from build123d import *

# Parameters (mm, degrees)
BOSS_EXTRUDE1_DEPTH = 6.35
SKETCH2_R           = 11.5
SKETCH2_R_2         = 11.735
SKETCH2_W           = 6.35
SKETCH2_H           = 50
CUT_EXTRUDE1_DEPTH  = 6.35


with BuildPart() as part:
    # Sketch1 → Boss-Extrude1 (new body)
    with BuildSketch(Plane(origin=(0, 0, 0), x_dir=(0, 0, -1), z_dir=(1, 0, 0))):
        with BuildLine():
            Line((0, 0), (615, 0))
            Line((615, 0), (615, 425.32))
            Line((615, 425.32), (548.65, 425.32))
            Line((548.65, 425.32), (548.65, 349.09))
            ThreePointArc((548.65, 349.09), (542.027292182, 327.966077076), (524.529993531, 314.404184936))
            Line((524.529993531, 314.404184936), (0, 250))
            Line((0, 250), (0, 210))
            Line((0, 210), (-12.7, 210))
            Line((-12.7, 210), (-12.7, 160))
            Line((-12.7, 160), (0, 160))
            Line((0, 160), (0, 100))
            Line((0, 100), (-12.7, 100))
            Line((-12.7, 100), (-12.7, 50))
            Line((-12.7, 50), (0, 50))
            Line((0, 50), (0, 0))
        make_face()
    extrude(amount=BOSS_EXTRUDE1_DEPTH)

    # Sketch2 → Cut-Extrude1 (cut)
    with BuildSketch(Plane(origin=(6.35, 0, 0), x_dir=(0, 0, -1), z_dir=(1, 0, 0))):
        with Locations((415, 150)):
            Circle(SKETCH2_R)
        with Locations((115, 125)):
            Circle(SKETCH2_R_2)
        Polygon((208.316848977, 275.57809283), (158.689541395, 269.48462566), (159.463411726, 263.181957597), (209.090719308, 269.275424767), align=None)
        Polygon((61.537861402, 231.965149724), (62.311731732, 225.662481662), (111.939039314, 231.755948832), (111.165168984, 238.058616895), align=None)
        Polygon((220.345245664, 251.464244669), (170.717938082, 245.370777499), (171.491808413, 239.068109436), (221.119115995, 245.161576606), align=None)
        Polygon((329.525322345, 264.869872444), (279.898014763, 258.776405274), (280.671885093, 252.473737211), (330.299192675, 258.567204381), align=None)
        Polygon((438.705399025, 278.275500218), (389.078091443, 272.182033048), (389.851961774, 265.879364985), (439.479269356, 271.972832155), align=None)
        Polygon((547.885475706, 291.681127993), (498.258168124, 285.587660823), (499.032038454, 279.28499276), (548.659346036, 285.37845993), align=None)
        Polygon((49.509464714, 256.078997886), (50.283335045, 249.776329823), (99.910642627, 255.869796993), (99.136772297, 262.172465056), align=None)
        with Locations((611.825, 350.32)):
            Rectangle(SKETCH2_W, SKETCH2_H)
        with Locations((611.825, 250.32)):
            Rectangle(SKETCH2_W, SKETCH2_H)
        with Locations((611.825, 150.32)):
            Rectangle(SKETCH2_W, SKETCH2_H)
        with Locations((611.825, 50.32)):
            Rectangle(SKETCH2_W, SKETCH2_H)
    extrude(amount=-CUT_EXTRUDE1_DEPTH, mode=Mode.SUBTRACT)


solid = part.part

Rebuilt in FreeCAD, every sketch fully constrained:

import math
import FreeCAD as App
import Part
import Sketcher
Q = App.Units.Quantity

doc = App.newDocument("Part")
body = doc.addObject("PartDesign::Body", "Body")

# Sketch on YZ plane
sketch1 = body.newObject("Sketcher::SketchObject", "Sketch")
sketch1.AttachmentSupport = (doc.getObject("YZ_Plane"), [""])
sketch1.MapMode = "FlatFace"
sketch1.addGeometry([
    Part.LineSegment(App.Vector(0, 0, 0), App.Vector(0, -615, 0)),  # 0
    Part.LineSegment(App.Vector(0, -615, 0), App.Vector(425, -615, 0)),  # 1
    Part.LineSegment(App.Vector(425, -615, 0), App.Vector(425, -549, 0)),  # 2
    Part.LineSegment(App.Vector(425, -549, 0), App.Vector(349, -549, 0)),  # 3
    Part.ArcOfCircle(Part.Circle(App.Vector(349, -512, 0), App.Vector(0, 0, 1), 37), math.radians(-160), math.radians(-90)),  # 4
    Part.LineSegment(App.Vector(314, -525, 0), App.Vector(250, 0, 0)),  # 5
    Part.LineSegment(App.Vector(250, 0, 0), App.Vector(210, 0, 0)),  # 6
    Part.LineSegment(App.Vector(210, 0, 0), App.Vector(210, 13, 0)),  # 7
    Part.LineSegment(App.Vector(210, 13, 0), App.Vector(160, 13, 0)),  # 8
    Part.LineSegment(App.Vector(160, 13, 0), App.Vector(160, 0, 0)),  # 9
    Part.LineSegment(App.Vector(160, 0, 0), App.Vector(100, 0, 0)),  # 10
    Part.LineSegment(App.Vector(100, 0, 0), App.Vector(100, 13, 0)),  # 11
    Part.LineSegment(App.Vector(100, 13, 0), App.Vector(50, 13, 0)),  # 12
    Part.LineSegment(App.Vector(50, 13, 0), App.Vector(50, 0, 0)),  # 13
    Part.LineSegment(App.Vector(50, 0, 0), App.Vector(0, 0, 0)),  # 14
], False)
sketch1.addConstraint([
    Sketcher.Constraint("Coincident", 0, 2, 1, 1),
    Sketcher.Constraint("Coincident", 1, 2, 2, 1),
    Sketcher.Constraint("Coincident", 2, 2, 3, 1),
    Sketcher.Constraint("Tangent", 3, 2, 4, 2),
    Sketcher.Constraint("Coincident", 4, 1, 5, 1),
    Sketcher.Constraint("Coincident", 5, 2, 6, 1),
    Sketcher.Constraint("Coincident", 6, 2, 7, 1),
    Sketcher.Constraint("Coincident", 7, 2, 8, 1),
    Sketcher.Constraint("Coincident", 8, 2, 9, 1),
    Sketcher.Constraint("Coincident", 9, 2, 10, 1),
    Sketcher.Constraint("Coincident", 10, 2, 11, 1),
    Sketcher.Constraint("Coincident", 11, 2, 12, 1),
    Sketcher.Constraint("Coincident", 12, 2, 13, 1),
    Sketcher.Constraint("Coincident", 13, 2, 14, 1),
    Sketcher.Constraint("Coincident", 14, 2, 0, 1),
    Sketcher.Constraint("Vertical", 0),
    Sketcher.Constraint("Horizontal", 1),
    Sketcher.Constraint("Vertical", 2),
    Sketcher.Constraint("Horizontal", 3),
    Sketcher.Constraint("Horizontal", 6),
    Sketcher.Constraint("Vertical", 7),
    Sketcher.Constraint("Horizontal", 8),
    Sketcher.Constraint("Vertical", 9),
    Sketcher.Constraint("Horizontal", 10),
    Sketcher.Constraint("Vertical", 11),
    Sketcher.Constraint("Horizontal", 12),
    Sketcher.Constraint("Vertical", 13),
    Sketcher.Constraint("Horizontal", 14),
    Sketcher.Constraint("Coincident", 14, 2, -1, 1),
    Sketcher.Constraint("PointOnObject", 5, 2, -1),
    Sketcher.Constraint("PointOnObject", 9, 2, -1),
    Sketcher.Constraint("Horizontal", 8, 2, 11, 2),
    Sketcher.Constraint("Equal", 8, 12),
    Sketcher.Constraint("Equal", 12, 14),
    Sketcher.Constraint("Radius", 4, Q("37 mm")),
    Sketcher.Constraint("DistanceX", 6, 2, 6, 1, Q("40 mm")),
    Sketcher.Constraint("DistanceX", 8, 2, 8, 1, Q("50 mm")),
    Sketcher.Constraint("DistanceX", 10, 2, 10, 1, Q("60 mm")),
    Sketcher.Constraint("DistanceY", 0, 2, 0, 1, Q("615 mm")),
    Sketcher.Constraint("Angle", 5, Q("97 deg")),
    Sketcher.Constraint("DistanceY", 7, 1, 7, 2, Q("12.7 mm")),
    Sketcher.Constraint("DistanceX", 1, 1, 1, 2, Q("425.32 mm")),
    Sketcher.Constraint("DistanceX", 3, 2, 3, 1, Q("76.23 mm")),
    Sketcher.Constraint("DistanceY", 2, 1, 2, 2, Q("66.35 mm")),
])
pad1 = body.newObject("PartDesign::Pad", "Pad")
pad1.Profile = sketch1
pad1.Length = 6.35

# Sketch on YZ plane
sketch2 = body.newObject("Sketcher::SketchObject", "Sketch001")
sketch2.AttachmentSupport = (doc.getObject("YZ_Plane"), [""])
sketch2.MapMode = "FlatFace"
sketch2.AttachmentOffset = App.Placement(App.Vector(0, 0, 6.35), App.Rotation())
sketch2.addGeometry([
    Part.Circle(App.Vector(150, -415, 0), App.Vector(0, 0, 1), 12),  # 0
    Part.Circle(App.Vector(125, -115, 0), App.Vector(0, 0, 1), 12),  # 1
    Part.LineSegment(App.Vector(276, -208, 0), App.Vector(269, -159, 0)),  # 2
    Part.LineSegment(App.Vector(269, -159, 0), App.Vector(263, -159, 0)),  # 3
    Part.LineSegment(App.Vector(263, -159, 0), App.Vector(269, -209, 0)),  # 4
    Part.LineSegment(App.Vector(269, -209, 0), App.Vector(276, -208, 0)),  # 5
    Part.LineSegment(App.Vector(232, -62, 0), App.Vector(226, -62, 0)),  # 6
    Part.LineSegment(App.Vector(226, -62, 0), App.Vector(232, -112, 0)),  # 7
    Part.LineSegment(App.Vector(232, -112, 0), App.Vector(238, -111, 0)),  # 8
    Part.LineSegment(App.Vector(238, -111, 0), App.Vector(232, -62, 0)),  # 9
    Part.LineSegment(App.Vector(251, -220, 0), App.Vector(245, -171, 0)),  # 10
    Part.LineSegment(App.Vector(245, -171, 0), App.Vector(239, -171, 0)),  # 11
    Part.LineSegment(App.Vector(239, -171, 0), App.Vector(245, -221, 0)),  # 12
    Part.LineSegment(App.Vector(245, -221, 0), App.Vector(251, -220, 0)),  # 13
    Part.LineSegment(App.Vector(265, -330, 0), App.Vector(259, -280, 0)),  # 14
    Part.LineSegment(App.Vector(259, -280, 0), App.Vector(252, -281, 0)),  # 15
    Part.LineSegment(App.Vector(252, -281, 0), App.Vector(259, -330, 0)),  # 16
    Part.LineSegment(App.Vector(259, -330, 0), App.Vector(265, -330, 0)),  # 17
    Part.LineSegment(App.Vector(278, -439, 0), App.Vector(272, -389, 0)),  # 18
    Part.LineSegment(App.Vector(272, -389, 0), App.Vector(266, -390, 0)),  # 19
    Part.LineSegment(App.Vector(266, -390, 0), App.Vector(272, -439, 0)),  # 20
    Part.LineSegment(App.Vector(272, -439, 0), App.Vector(278, -439, 0)),  # 21
    Part.LineSegment(App.Vector(292, -548, 0), App.Vector(286, -498, 0)),  # 22
    Part.LineSegment(App.Vector(286, -498, 0), App.Vector(279, -499, 0)),  # 23
    Part.LineSegment(App.Vector(279, -499, 0), App.Vector(285, -549, 0)),  # 24
    Part.LineSegment(App.Vector(285, -549, 0), App.Vector(292, -548, 0)),  # 25
    Part.LineSegment(App.Vector(256, -50, 0), App.Vector(250, -50, 0)),  # 26
    Part.LineSegment(App.Vector(250, -50, 0), App.Vector(256, -100, 0)),  # 27
    Part.LineSegment(App.Vector(256, -100, 0), App.Vector(262, -99, 0)),  # 28
    Part.LineSegment(App.Vector(262, -99, 0), App.Vector(256, -50, 0)),  # 29
    Part.LineSegment(App.Vector(375, -609, 0), App.Vector(325, -609, 0)),  # 30
    Part.LineSegment(App.Vector(325, -609, 0), App.Vector(325, -615, 0)),  # 31
    Part.LineSegment(App.Vector(325, -615, 0), App.Vector(375, -615, 0)),  # 32
    Part.LineSegment(App.Vector(375, -615, 0), App.Vector(375, -609, 0)),  # 33
    Part.LineSegment(App.Vector(275, -609, 0), App.Vector(225, -609, 0)),  # 34
    Part.LineSegment(App.Vector(225, -609, 0), App.Vector(225, -615, 0)),  # 35
    Part.LineSegment(App.Vector(225, -615, 0), App.Vector(275, -615, 0)),  # 36
    Part.LineSegment(App.Vector(275, -615, 0), App.Vector(275, -609, 0)),  # 37
    Part.LineSegment(App.Vector(175, -609, 0), App.Vector(125, -609, 0)),  # 38
    Part.LineSegment(App.Vector(125, -609, 0), App.Vector(125, -615, 0)),  # 39
    Part.LineSegment(App.Vector(125, -615, 0), App.Vector(175, -615, 0)),  # 40
    Part.LineSegment(App.Vector(175, -615, 0), App.Vector(175, -609, 0)),  # 41
    Part.LineSegment(App.Vector(75, -609, 0), App.Vector(25, -609, 0)),  # 42
    Part.LineSegment(App.Vector(25, -609, 0), App.Vector(25, -615, 0)),  # 43
    Part.LineSegment(App.Vector(25, -615, 0), App.Vector(75, -615, 0)),  # 44
    Part.LineSegment(App.Vector(75, -615, 0), App.Vector(75, -609, 0)),  # 45
], False)
sketch2.addConstraint([
    Sketcher.Constraint("Coincident", 2, 2, 3, 1),
    Sketcher.Constraint("Coincident", 3, 2, 4, 1),
    Sketcher.Constraint("Coincident", 4, 2, 5, 1),
    Sketcher.Constraint("Coincident", 5, 2, 2, 1),
    Sketcher.Constraint("Coincident", 6, 2, 7, 1),
    Sketcher.Constraint("Coincident", 7, 2, 8, 1),
    Sketcher.Constraint("Coincident", 8, 2, 9, 1),
    Sketcher.Constraint("Coincident", 9, 2, 6, 1),
    Sketcher.Constraint("Coincident", 10, 2, 11, 1),
    Sketcher.Constraint("Coincident", 11, 2, 12, 1),
    Sketcher.Constraint("Coincident", 12, 2, 13, 1),
    Sketcher.Constraint("Coincident", 13, 2, 10, 1),
    Sketcher.Constraint("Coincident", 14, 2, 15, 1),
    Sketcher.Constraint("Coincident", 15, 2, 16, 1),
    Sketcher.Constraint("Coincident", 16, 2, 17, 1),
    Sketcher.Constraint("Coincident", 17, 2, 14, 1),
    Sketcher.Constraint("Coincident", 18, 2, 19, 1),
    Sketcher.Constraint("Coincident", 19, 2, 20, 1),
    Sketcher.Constraint("Coincident", 20, 2, 21, 1),
    Sketcher.Constraint("Coincident", 21, 2, 18, 1),
    Sketcher.Constraint("Coincident", 22, 2, 23, 1),
    Sketcher.Constraint("Coincident", 23, 2, 24, 1),
    Sketcher.Constraint("Coincident", 24, 2, 25, 1),
    Sketcher.Constraint("Coincident", 25, 2, 22, 1),
    Sketcher.Constraint("Coincident", 26, 2, 27, 1),
    Sketcher.Constraint("Coincident", 27, 2, 28, 1),
    Sketcher.Constraint("Coincident", 28, 2, 29, 1),
    Sketcher.Constraint("Coincident", 29, 2, 26, 1),
    Sketcher.Constraint("Coincident", 30, 2, 31, 1),
    Sketcher.Constraint("Coincident", 31, 2, 32, 1),
    Sketcher.Constraint("Coincident", 32, 2, 33, 1),
    Sketcher.Constraint("Coincident", 33, 2, 30, 1),
    Sketcher.Constraint("Coincident", 34, 2, 35, 1),
    Sketcher.Constraint("Coincident", 35, 2, 36, 1),
    Sketcher.Constraint("Coincident", 36, 2, 37, 1),
    Sketcher.Constraint("Coincident", 37, 2, 34, 1),
    Sketcher.Constraint("Coincident", 38, 2, 39, 1),
    Sketcher.Constraint("Coincident", 39, 2, 40, 1),
    Sketcher.Constraint("Coincident", 40, 2, 41, 1),
    Sketcher.Constraint("Coincident", 41, 2, 38, 1),
    Sketcher.Constraint("Coincident", 42, 2, 43, 1),
    Sketcher.Constraint("Coincident", 43, 2, 44, 1),
    Sketcher.Constraint("Coincident", 44, 2, 45, 1),
    Sketcher.Constraint("Coincident", 45, 2, 42, 1),
    Sketcher.Constraint("Horizontal", 30),
    Sketcher.Constraint("Vertical", 31),
    Sketcher.Constraint("Horizontal", 32),
    Sketcher.Constraint("Vertical", 33),
    Sketcher.Constraint("Horizontal", 34),
    Sketcher.Constraint("Vertical", 35),
    Sketcher.Constraint("Horizontal", 36),
    Sketcher.Constraint("Vertical", 37),
    Sketcher.Constraint("Horizontal", 38),
    Sketcher.Constraint("Vertical", 39),
    Sketcher.Constraint("Horizontal", 40),
    Sketcher.Constraint("Vertical", 41),
    Sketcher.Constraint("Horizontal", 42),
    Sketcher.Constraint("Vertical", 43),
    Sketcher.Constraint("Horizontal", 44),
    Sketcher.Constraint("Vertical", 45),
    Sketcher.Constraint("Perpendicular", 2, 3),
    Sketcher.Constraint("Perpendicular", 3, 4),
    Sketcher.Constraint("Perpendicular", 4, 5),
    Sketcher.Constraint("Parallel", 5, 6),
    Sketcher.Constraint("Perpendicular", 6, 7),
    Sketcher.Constraint("Perpendicular", 7, 8),
    Sketcher.Constraint("Perpendicular", 8, 9),
    Sketcher.Constraint("Parallel", 9, 10),
    Sketcher.Constraint("Perpendicular", 10, 11),
    Sketcher.Constraint("Perpendicular", 11, 12),
    Sketcher.Constraint("Perpendicular", 12, 13),
    Sketcher.Constraint("Perpendicular", 13, 14),
    Sketcher.Constraint("Perpendicular", 14, 15),
    Sketcher.Constraint("Perpendicular", 15, 16),
    Sketcher.Constraint("Perpendicular", 16, 17),
    Sketcher.Constraint("Perpendicular", 17, 18),
    Sketcher.Constraint("Perpendicular", 18, 19),
    Sketcher.Constraint("Perpendicular", 19, 20),
    Sketcher.Constraint("Perpendicular", 20, 21),
    Sketcher.Constraint("Perpendicular", 21, 22),
    Sketcher.Constraint("Perpendicular", 22, 23),
    Sketcher.Constraint("Perpendicular", 23, 24),
    Sketcher.Constraint("Perpendicular", 24, 25),
    Sketcher.Constraint("Parallel", 25, 26),
    Sketcher.Constraint("Perpendicular", 26, 27),
    Sketcher.Constraint("Perpendicular", 27, 28),
    Sketcher.Constraint("Perpendicular", 28, 29),
    Sketcher.Constraint("Horizontal", 33, 2, 34, 2),
    Sketcher.Constraint("Horizontal", 32, 2, 35, 2),
    Sketcher.Constraint("Horizontal", 37, 2, 38, 2),
    Sketcher.Constraint("Horizontal", 36, 2, 39, 2),
    Sketcher.Constraint("Horizontal", 41, 2, 42, 2),
    Sketcher.Constraint("Horizontal", 40, 2, 43, 2),
    Sketcher.Constraint("Equal", 32, 34),
    Sketcher.Constraint("Equal", 36, 38),
    Sketcher.Constraint("Equal", 40, 42),
    Sketcher.Constraint("Equal", 5, 6),
    Sketcher.Constraint("Equal", 4, 7),
    Sketcher.Constraint("Equal", 9, 10),
    Sketcher.Constraint("Equal", 8, 11),
    Sketcher.Constraint("Equal", 12, 14),
    Sketcher.Constraint("Equal", 13, 15),
    Sketcher.Constraint("Equal", 16, 18),
    Sketcher.Constraint("Equal", 17, 19),
    Sketcher.Constraint("Equal", 20, 22),
    Sketcher.Constraint("Equal", 21, 23),
    Sketcher.Constraint("Equal", 25, 26),
    Sketcher.Constraint("Equal", 24, 27),
    Sketcher.Constraint("Diameter", 0, Q("23 mm")),
    Sketcher.Constraint("Diameter", 1, Q("23.47 mm")),
    Sketcher.Constraint("DistanceX", 30, 2, 30, 1, Q("50 mm")),
    Sketcher.Constraint("Angle", 2, Q("97 deg")),
    Sketcher.Constraint("Distance", 2, Q("50 mm")),
    Sketcher.Constraint("DistanceX", -1, 1, 0, 3, Q("150 mm")),
    Sketcher.Constraint("DistanceY", 0, 3, -1, 1, Q("415 mm")),
    Sketcher.Constraint("DistanceX", -1, 1, 1, 3, Q("125 mm")),
    Sketcher.Constraint("DistanceY", 1, 3, -1, 1, Q("115 mm")),
    Sketcher.Constraint("DistanceY", 31, 2, -1, 1, Q("615 mm")),
    Sketcher.Constraint("DistanceX", 34, 2, 30, 2, Q("100 mm")),
    Sketcher.Constraint("DistanceX", 38, 2, 34, 2, Q("100 mm")),
    Sketcher.Constraint("DistanceX", 42, 2, 38, 2, Q("100 mm")),
    Sketcher.Constraint("DistanceY", 31, 2, 31, 1, Q("6.35 mm")),
    Sketcher.Constraint("Distance", 3, Q("6.35 mm")),
    Sketcher.Constraint("DistanceX", -1, 1, 30, 2, Q("325.32 mm")),
    Sketcher.Constraint("DistanceX", -1, 1, 21, 2, Q("278.2755 mm")),
    Sketcher.Constraint("DistanceY", 21, 2, -1, 1, Q("438.705399 mm")),
    Sketcher.Constraint("DistanceY", 14, 2, 12, 2, Q("58.778899 mm")),
    Sketcher.Constraint("DistanceY", 18, 2, 16, 2, Q("58.778899 mm")),
    Sketcher.Constraint("DistanceY", 22, 2, 20, 2, Q("58.778899 mm")),
    Sketcher.Constraint("DistanceY", 2, 2, -1, 1, Q("158.689541 mm")),
    Sketcher.Constraint("DistanceX", -1, 1, 6, 2, Q("225.662482 mm")),
    Sketcher.Constraint("DistanceY", 6, 2, -1, 1, Q("62.311732 mm")),
    Sketcher.Constraint("DistanceX", -1, 1, 11, 2, Q("239.068109 mm")),
    Sketcher.Constraint("DistanceX", -1, 1, 22, 2, Q("285.587661 mm")),
    Sketcher.Constraint("DistanceX", -1, 1, 26, 2, Q("249.77633 mm")),
    Sketcher.Constraint("DistanceX", 6, 2, 5, 2, Q("49.915611 mm")),
    Sketcher.Constraint("DistanceX", 13, 2, 14, 2, Q("7.312161 mm")),
    Sketcher.Constraint("DistanceY", 27, 2, 9, 2, Q("38.372781 mm")),
])
pocket1 = body.newObject("PartDesign::Pocket", "Pocket")
pocket1.Profile = sketch2
pocket1.Length = 6.35

doc.recompute()
